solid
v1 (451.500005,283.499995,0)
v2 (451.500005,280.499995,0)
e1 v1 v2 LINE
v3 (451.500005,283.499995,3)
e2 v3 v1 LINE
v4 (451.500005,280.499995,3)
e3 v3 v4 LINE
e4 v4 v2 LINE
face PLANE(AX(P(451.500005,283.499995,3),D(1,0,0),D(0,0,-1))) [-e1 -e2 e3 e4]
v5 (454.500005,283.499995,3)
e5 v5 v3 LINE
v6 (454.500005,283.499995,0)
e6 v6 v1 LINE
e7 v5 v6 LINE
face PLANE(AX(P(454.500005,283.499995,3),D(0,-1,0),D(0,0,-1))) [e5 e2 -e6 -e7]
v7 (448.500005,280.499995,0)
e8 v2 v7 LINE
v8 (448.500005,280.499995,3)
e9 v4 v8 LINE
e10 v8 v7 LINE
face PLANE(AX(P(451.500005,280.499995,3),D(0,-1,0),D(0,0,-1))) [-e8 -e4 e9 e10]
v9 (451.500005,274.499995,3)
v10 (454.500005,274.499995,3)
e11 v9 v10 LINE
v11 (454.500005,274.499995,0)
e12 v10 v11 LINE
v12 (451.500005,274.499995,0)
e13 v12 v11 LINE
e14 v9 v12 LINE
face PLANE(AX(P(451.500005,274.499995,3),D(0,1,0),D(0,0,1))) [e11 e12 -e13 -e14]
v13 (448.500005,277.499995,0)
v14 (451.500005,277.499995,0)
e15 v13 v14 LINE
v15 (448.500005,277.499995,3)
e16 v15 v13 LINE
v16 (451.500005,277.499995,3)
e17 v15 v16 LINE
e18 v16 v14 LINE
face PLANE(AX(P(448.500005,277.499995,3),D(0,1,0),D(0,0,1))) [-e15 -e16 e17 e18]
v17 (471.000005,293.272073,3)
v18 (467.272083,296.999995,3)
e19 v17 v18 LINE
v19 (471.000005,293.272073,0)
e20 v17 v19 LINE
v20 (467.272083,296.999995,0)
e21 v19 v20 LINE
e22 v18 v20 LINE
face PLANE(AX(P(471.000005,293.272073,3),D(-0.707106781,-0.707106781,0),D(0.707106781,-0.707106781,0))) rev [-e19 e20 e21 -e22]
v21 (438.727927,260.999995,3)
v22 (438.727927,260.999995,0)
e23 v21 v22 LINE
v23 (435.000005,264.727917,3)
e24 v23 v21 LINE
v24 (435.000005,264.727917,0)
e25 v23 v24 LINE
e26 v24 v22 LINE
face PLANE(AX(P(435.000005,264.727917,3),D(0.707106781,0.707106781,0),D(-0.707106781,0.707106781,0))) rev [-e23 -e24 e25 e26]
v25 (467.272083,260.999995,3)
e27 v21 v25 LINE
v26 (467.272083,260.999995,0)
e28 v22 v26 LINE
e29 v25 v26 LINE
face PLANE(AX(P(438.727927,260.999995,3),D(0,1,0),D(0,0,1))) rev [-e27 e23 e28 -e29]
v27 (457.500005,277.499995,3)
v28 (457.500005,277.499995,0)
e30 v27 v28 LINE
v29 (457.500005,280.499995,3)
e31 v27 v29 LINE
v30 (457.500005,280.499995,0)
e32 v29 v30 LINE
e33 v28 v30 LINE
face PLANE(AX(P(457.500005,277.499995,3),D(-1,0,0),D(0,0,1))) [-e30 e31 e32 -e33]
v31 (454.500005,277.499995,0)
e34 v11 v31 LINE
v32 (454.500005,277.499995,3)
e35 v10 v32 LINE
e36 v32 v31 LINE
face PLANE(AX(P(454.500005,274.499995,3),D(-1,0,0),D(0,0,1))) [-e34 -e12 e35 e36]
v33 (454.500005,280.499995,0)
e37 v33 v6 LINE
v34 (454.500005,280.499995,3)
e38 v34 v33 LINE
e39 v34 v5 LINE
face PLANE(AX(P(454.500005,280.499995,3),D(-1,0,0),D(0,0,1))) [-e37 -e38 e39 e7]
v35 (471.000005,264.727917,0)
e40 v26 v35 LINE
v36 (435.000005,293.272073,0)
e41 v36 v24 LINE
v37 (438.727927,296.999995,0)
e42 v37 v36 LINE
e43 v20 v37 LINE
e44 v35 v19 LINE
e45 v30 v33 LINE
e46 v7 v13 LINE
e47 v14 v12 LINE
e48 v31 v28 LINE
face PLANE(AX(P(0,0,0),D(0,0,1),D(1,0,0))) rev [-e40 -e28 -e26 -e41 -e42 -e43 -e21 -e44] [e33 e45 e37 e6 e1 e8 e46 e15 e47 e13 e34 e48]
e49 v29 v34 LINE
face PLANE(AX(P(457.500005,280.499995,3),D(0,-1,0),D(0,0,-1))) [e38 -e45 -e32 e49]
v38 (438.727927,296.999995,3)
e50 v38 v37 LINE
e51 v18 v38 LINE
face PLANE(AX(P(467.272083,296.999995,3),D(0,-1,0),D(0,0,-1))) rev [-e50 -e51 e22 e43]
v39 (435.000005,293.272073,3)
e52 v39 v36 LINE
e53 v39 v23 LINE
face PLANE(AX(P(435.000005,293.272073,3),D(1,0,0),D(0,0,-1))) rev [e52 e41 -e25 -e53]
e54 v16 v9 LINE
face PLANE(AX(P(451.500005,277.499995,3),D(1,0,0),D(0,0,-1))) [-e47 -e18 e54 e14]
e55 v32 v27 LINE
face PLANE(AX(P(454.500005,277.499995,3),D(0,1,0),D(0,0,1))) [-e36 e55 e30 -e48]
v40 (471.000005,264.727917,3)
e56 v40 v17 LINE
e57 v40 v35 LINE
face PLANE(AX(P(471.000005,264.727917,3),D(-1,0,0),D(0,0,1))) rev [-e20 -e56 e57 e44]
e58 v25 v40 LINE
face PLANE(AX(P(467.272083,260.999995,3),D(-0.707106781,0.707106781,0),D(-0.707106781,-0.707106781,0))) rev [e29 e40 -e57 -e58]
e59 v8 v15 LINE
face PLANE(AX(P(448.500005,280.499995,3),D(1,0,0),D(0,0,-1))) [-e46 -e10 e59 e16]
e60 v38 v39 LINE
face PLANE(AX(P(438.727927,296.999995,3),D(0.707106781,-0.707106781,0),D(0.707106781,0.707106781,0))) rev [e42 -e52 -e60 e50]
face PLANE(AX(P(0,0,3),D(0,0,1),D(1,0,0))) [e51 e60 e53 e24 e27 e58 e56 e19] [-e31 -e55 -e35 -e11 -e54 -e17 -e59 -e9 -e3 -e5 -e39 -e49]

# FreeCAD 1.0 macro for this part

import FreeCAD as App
import Part
import Sketcher


def add_polygon(sketch, points):
    """Adds a closed chain of lines whose ends are joined by coincident constraints."""
    first, n = sketch.GeometryCount, len(points)
    for a, b in zip(points, points[1:] + points[:1]):
        sketch.addGeometry(Part.LineSegment(App.Vector(*a, 0), App.Vector(*b, 0)), False)
    for i in range(n):
        sketch.addConstraint(Sketcher.Constraint("Coincident", first + i, 2, first + (i + 1) % n, 1))

doc = App.newDocument("Part")
body = doc.addObject("PartDesign::Body", "Body")

# Sketch on XY plane
sketch1 = doc.addObject("Sketcher::SketchObject", "Sketch")
body.addObject(sketch1)
sketch1.AttachmentSupport = (doc.XY_Plane, [""])
sketch1.MapMode = "FlatFace"
add_polygon(sketch1, [(471.000005, 293.272073), (467.272083, 296.999995), (438.727927, 296.999995), (435.000005, 293.272073), (435.000005, 264.727917), (438.727927, 260.999995), (467.272083, 260.999995), (471.000005, 264.727917)])  # lines 0-7
add_polygon(sketch1, [(454.500005, 277.499995), (454.500005, 274.499995), (451.500005, 274.499995), (451.500005, 277.499995), (448.500005, 277.499995), (448.500005, 280.499995), (451.500005, 280.499995), (451.500005, 283.499995), (454.500005, 283.499995), (454.500005, 280.499995), (457.500005, 280.499995), (457.500005, 277.499995)])  # lines 8-19
sketch1.addConstraint(Sketcher.Constraint("Horizontal", 1))
sketch1.addConstraint(Sketcher.Constraint("Vertical", 3))
sketch1.addConstraint(Sketcher.Constraint("Horizontal", 5))
sketch1.addConstraint(Sketcher.Constraint("Vertical", 7))
sketch1.addConstraint(Sketcher.Constraint("Vertical", 8))
sketch1.addConstraint(Sketcher.Constraint("Horizontal", 9))
sketch1.addConstraint(Sketcher.Constraint("Vertical", 10))
sketch1.addConstraint(Sketcher.Constraint("Horizontal", 11))
sketch1.addConstraint(Sketcher.Constraint("Vertical", 12))
sketch1.addConstraint(Sketcher.Constraint("Horizontal", 13))
sketch1.addConstraint(Sketcher.Constraint("Vertical", 14))
sketch1.addConstraint(Sketcher.Constraint("Horizontal", 15))
sketch1.addConstraint(Sketcher.Constraint("Vertical", 16))
sketch1.addConstraint(Sketcher.Constraint("Horizontal", 17))
sketch1.addConstraint(Sketcher.Constraint("Vertical", 18))
sketch1.addConstraint(Sketcher.Constraint("Horizontal", 19))
sketch1.addConstraint(Sketcher.Constraint("Perpendicular", 0, 2))
sketch1.addConstraint(Sketcher.Constraint("Perpendicular", 2, 4))
sketch1.addConstraint(Sketcher.Constraint("Perpendicular", 4, 6))
sketch1.addConstraint(Sketcher.Constraint("Horizontal", 3, 2, 6, 2))
sketch1.addConstraint(Sketcher.Constraint("Horizontal", 2, 2, 7, 2))
sketch1.addConstraint(Sketcher.Constraint("Horizontal", 13, 2, 16, 2))
sketch1.addConstraint(Sketcher.Constraint("Horizontal", 11, 2, 18, 2))
sketch1.addConstraint(Sketcher.Constraint("Vertical", 1, 2, 4, 2))
sketch1.addConstraint(Sketcher.Constraint("Vertical", 0, 2, 5, 2))
sketch1.addConstraint(Sketcher.Constraint("Vertical", 10, 2, 13, 2))
sketch1.addConstraint(Sketcher.Constraint("Vertical", 8, 2, 15, 2))
sketch1.addConstraint(Sketcher.Constraint("Equal", 9, 11))
sketch1.addConstraint(Sketcher.Constraint("Equal", 15, 17))
sketch1.addConstraint(Sketcher.Constraint("Equal", 5, 3))
sketch1.addConstraint(Sketcher.Constraint("Equal", 19, 8))
sketch1.addConstraint(Sketcher.Constraint("Equal", 10, 12))
sketch1.addConstraint(Sketcher.Constraint("Equal", 12, 14))
sketch1.addConstraint(Sketcher.Constraint("DistanceX", 9, 2, 9, 1, 3.0))
sketch1.addConstraint(Sketcher.Constraint("DistanceY", 4, 2, 1, 2, 36.0))
sketch1.addConstraint(Sketcher.Constraint("DistanceY", 5, 2, 8, 2, 13.5))
sketch1.addConstraint(Sketcher.Constraint("DistanceX", 8, 2, 6, 2, 16.5))
sketch1.addConstraint(Sketcher.Constraint("DistanceX", 1, 2, 1, 1, 28.544156))
sketch1.addConstraint(Sketcher.Constraint("DistanceX", -1, 1, 0, 2, 467.272083))
sketch1.addConstraint(Sketcher.Constraint("DistanceY", -1, 1, 0, 2, 296.999995))
pad1 = doc.addObject("PartDesign::Pad", "Pad")
body.addObject(pad1)
pad1.Profile = sketch1
pad1.Length = 3

doc.recompute()
